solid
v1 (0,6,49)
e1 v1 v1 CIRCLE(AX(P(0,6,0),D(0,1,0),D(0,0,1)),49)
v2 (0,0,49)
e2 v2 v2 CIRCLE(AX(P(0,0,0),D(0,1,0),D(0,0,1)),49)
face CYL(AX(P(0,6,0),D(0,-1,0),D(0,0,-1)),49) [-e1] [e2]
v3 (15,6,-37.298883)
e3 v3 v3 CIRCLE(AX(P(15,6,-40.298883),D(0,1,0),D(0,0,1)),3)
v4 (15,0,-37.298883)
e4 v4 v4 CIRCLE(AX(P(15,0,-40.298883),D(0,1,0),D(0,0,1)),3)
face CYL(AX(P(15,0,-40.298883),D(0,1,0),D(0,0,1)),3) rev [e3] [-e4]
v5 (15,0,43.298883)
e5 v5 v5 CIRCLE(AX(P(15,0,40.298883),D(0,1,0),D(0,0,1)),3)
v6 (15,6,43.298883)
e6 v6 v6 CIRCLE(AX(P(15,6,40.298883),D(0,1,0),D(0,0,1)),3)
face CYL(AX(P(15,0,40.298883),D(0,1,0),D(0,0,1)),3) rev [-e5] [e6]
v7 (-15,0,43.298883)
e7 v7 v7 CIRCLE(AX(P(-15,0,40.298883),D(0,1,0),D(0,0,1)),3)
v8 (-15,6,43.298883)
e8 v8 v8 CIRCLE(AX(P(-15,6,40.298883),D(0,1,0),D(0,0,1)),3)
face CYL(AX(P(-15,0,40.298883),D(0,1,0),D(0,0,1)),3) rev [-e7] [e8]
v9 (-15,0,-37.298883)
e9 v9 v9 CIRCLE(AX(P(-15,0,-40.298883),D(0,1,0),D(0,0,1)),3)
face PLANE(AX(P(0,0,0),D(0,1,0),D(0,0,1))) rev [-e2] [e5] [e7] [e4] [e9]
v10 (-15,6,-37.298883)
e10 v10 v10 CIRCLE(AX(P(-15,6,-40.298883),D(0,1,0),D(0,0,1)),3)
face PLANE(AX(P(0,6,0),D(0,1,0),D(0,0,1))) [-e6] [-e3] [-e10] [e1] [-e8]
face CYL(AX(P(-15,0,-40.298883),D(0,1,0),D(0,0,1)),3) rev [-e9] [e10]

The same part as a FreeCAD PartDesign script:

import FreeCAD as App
import Part
import Sketcher

V = App.Vector

doc = App.newDocument("Part")
body = doc.addObject("PartDesign::Body", "Body")

# Sketch on XZ plane
sketch1 = body.newObject("Sketcher::SketchObject", "Sketch")
sketch1.AttachmentSupport = (doc.getObject("XZ_Plane"), [""])
sketch1.MapMode = "FlatFace"
sketch1.addGeometry(Part.Circle(V(0, 0, 0), V(0, 0, 1), 49), False)
sketch1.addConstraint([
    Sketcher.Constraint("Coincident", 0, 3, -1, 1),
    Sketcher.Constraint("Diameter", 0, 98.0),
])
pad1 = body.newObject("PartDesign::Pad", "Pad")
pad1.Profile = sketch1
pad1.Length = 6
pad1.Reversed = True

# Sketch on XZ plane
sketch2 = body.newObject("Sketcher::SketchObject", "Sketch001")
sketch2.AttachmentSupport = (doc.getObject("XZ_Plane"), [""])
sketch2.MapMode = "FlatFace"
sketch2.AttachmentOffset = App.Placement(V(0, 0, -6), App.Rotation())
sketch2.addGeometry([
    Part.Circle(V(-15, -40.3, 0), V(0, 0, 1), 3),
    Part.Circle(V(15, -40.3, 0), V(0, 0, 1), 3),
    Part.Circle(V(-15, 40.3, 0), V(0, 0, 1), 3),
    Part.Circle(V(15, 40.3, 0), V(0, 0, 1), 3),
], False)
sketch2.addConstraint([
    Sketcher.Constraint("Equal", 0, 1),
    Sketcher.Constraint("Equal", 1, 2),
    Sketcher.Constraint("Equal", 2, 3),
    Sketcher.Constraint("Symmetric", 1, 3, 2, 3, -1, 1),
    Sketcher.Constraint("Symmetric", 0, 3, 3, 3, -1, 1),
    Sketcher.Constraint("Symmetric", 0, 3, 1, 3, -2),
    Sketcher.Constraint("Diameter", 0, 6.0),
    Sketcher.Constraint("DistanceX", 0, 3, -1, 1, 15.0),
    Sketcher.Constraint("DistanceY", 0, 3, -1, 1, 40.298883),
])
pocket1 = body.newObject("PartDesign::Pocket", "Pocket")
pocket1.Profile = sketch2
pocket1.Length = 6
pocket1.Reversed = True

doc.recompute()
